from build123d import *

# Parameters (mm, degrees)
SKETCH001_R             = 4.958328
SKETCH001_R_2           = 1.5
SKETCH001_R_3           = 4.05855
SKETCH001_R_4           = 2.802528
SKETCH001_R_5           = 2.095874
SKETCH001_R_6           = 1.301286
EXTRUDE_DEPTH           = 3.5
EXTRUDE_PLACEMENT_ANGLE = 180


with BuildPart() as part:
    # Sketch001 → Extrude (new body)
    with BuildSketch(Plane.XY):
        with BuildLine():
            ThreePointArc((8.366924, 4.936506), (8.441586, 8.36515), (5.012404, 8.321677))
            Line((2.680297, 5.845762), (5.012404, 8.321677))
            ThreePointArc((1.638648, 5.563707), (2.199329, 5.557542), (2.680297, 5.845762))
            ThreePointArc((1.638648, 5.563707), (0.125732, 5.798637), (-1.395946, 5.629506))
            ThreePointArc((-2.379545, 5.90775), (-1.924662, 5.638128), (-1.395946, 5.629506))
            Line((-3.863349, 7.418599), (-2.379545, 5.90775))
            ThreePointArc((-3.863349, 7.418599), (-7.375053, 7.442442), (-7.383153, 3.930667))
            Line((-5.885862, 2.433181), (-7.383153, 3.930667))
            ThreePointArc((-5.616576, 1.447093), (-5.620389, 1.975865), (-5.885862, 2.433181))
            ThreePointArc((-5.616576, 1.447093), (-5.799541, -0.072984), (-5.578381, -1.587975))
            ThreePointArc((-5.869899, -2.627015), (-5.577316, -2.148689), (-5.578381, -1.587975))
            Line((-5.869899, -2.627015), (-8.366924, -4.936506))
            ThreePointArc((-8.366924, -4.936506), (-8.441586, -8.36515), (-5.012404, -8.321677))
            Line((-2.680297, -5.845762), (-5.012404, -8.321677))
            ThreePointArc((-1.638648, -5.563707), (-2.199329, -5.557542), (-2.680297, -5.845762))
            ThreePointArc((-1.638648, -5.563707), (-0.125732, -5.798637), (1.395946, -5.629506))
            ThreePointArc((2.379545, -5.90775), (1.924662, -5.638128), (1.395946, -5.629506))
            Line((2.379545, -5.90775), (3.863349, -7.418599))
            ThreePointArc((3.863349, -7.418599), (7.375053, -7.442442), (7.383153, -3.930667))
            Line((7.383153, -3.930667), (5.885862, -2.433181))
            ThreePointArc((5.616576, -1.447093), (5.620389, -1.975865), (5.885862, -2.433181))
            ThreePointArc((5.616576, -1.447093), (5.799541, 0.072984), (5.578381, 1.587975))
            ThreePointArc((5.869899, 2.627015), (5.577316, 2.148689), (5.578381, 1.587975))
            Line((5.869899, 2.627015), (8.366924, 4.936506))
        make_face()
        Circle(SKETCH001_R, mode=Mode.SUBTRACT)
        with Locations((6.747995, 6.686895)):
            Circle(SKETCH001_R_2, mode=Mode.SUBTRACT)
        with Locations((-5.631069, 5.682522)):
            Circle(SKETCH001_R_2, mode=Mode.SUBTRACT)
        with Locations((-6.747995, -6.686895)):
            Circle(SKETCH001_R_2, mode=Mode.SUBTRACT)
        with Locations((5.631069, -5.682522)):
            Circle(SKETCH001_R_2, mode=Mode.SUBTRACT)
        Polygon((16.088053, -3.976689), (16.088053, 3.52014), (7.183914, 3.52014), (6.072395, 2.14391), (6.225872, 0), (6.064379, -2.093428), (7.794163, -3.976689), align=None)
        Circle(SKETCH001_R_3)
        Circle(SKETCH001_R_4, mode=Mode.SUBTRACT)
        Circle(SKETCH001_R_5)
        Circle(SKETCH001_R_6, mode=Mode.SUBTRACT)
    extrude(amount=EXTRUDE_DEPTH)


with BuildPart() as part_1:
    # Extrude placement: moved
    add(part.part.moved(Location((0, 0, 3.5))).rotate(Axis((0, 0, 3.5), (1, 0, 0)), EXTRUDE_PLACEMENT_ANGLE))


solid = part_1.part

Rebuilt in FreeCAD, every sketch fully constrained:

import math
import FreeCAD as App
import Part
import Sketcher

doc = App.newDocument("Part")
params = doc.addObject("Spreadsheet::Sheet", "Params")
for row, (alias, value) in enumerate([
    ("sketch1_diameter", "3 mm"),
    ("sketch1_radius", "5.799998 mm"),
    ("pad1_length", "3.5 mm"),
], start=1):
    params.set(f"A{row}", alias)
    params.set(f"B{row}", "=" + value)
    params.setAlias(f"B{row}", alias)

body = doc.addObject("PartDesign::Body", "Body")
body.AllowCompound = True

# Sketch on XY plane
sketch1 = body.newObject("Sketcher::SketchObject", "Sketch")
sketch1.AttachmentSupport = (doc.getObject("XY_Plane"), [""])
sketch1.MapMode = "FlatFace"
sketch1.addGeometry(Part.ArcOfCircle(Part.Circle(App.Vector(6.747995, 6.686895, 0), App.Vector(0, 0, 1), 2.38428), math.radians(-47.234364), math.radians(136.713224)), False)
sketch1.addGeometry(Part.LineSegment(App.Vector(5.012404, 8.321677, 0), App.Vector(2.680297, 5.845762, 0)), False)
sketch1.addGeometry(Part.ArcOfCircle(Part.Circle(App.Vector(1.929896, 6.552578, 0), App.Vector(0, 0, 1), 1.030869), math.radians(-106.411034), math.radians(-43.286802)), False)
sketch1.addGeometry(Part.ArcOfCircle(Part.Circle(App.Vector(0, -0.000008, 0), App.Vector(0, 0, 1), 5.800008), math.radians(73.589028), math.radians(103.926676)), False)
sketch1.addGeometry(Part.ArcOfCircle(Part.Circle(App.Vector(-1.644058, 6.63007, 0), App.Vector(0, 0, 1), 1.030868), math.radians(-135.517492), math.radians(-76.073181)), False)
sketch1.addGeometry(Part.LineSegment(App.Vector(-2.379545, 5.90775, 0), App.Vector(-3.863349, 7.418599, 0)), False)
sketch1.addGeometry(Part.ArcOfCircle(Part.Circle(App.Vector(-5.631069, 5.682523, 0), App.Vector(0, 0, 1), 2.477659), math.radians(44.482559), math.radians(224.996268)), False)
sketch1.addGeometry(Part.LineSegment(App.Vector(-7.383153, 3.930667, 0), App.Vector(-5.885862, 2.433181, 0)), False)
sketch1.addGeometry(Part.ArcOfCircle(Part.Circle(App.Vector(-6.614843, 1.704294, 0), App.Vector(0, 0, 1), 1.030868), math.radians(-14.447906), math.radians(44.996312)), False)
sketch1.addGeometry(Part.ArcOfCircle(Part.Circle(App.Vector(-0.000002, 0.000001, 0), App.Vector(0, 0, 1), 5.799998), math.radians(165.552148), math.radians(195.88986)), False)
sketch1.addGeometry(Part.ArcOfCircle(Part.Circle(App.Vector(-6.569859, -1.870216, 0), App.Vector(0, 0, 1), 1.030867), math.radians(-47.234413), math.radians(15.889918)), False)
sketch1.addGeometry(Part.LineSegment(App.Vector(-5.869899, -2.627015, 0), App.Vector(-8.366924, -4.936506, 0)), False)
sketch1.addGeometry(Part.ArcOfCircle(Part.Circle(App.Vector(-6.747995, -6.686895, 0), App.Vector(0, 0, 1), 2.38428), math.radians(132.765636), math.radians(316.713224)), False)
sketch1.addGeometry(Part.LineSegment(App.Vector(-5.012404, -8.321677, 0), App.Vector(-2.680297, -5.845762, 0)), False)
sketch1.addGeometry(Part.ArcOfCircle(Part.Circle(App.Vector(-1.929896, -6.552578, 0), App.Vector(0, 0, 1), 1.030869), math.radians(73.588966), math.radians(136.713198)), False)
sketch1.addGeometry(Part.ArcOfCircle(Part.Circle(App.Vector(0, 0.000008, 0), App.Vector(0, 0, 1), 5.800008), math.radians(-106.410972), math.radians(-76.073324)), False)
sketch1.addGeometry(Part.ArcOfCircle(Part.Circle(App.Vector(1.644058, -6.63007, 0), App.Vector(0, 0, 1), 1.030868), math.radians(44.482508), math.radians(103.926819)), False)
sketch1.addGeometry(Part.LineSegment(App.Vector(2.379545, -5.90775, 0), App.Vector(3.863349, -7.418599, 0)), False)
sketch1.addGeometry(Part.ArcOfCircle(Part.Circle(App.Vector(5.631069, -5.682523, 0), App.Vector(0, 0, 1), 2.477659), math.radians(-135.517441), math.radians(44.996268)), False)
sketch1.addGeometry(Part.LineSegment(App.Vector(7.383153, -3.930667, 0), App.Vector(5.885862, -2.433181, 0)), False)
sketch1.addGeometry(Part.ArcOfCircle(Part.Circle(App.Vector(6.614843, -1.704294, 0), App.Vector(0, 0, 1), 1.030868), math.radians(165.552094), math.radians(224.996312)), False)
sketch1.addGeometry(Part.ArcOfCircle(Part.Circle(App.Vector(0.000002, -0.000001, 0), App.Vector(0, 0, 1), 5.799998), math.radians(-14.447852), math.radians(15.88986)), False)
sketch1.addGeometry(Part.ArcOfCircle(Part.Circle(App.Vector(6.569859, 1.870216, 0), App.Vector(0, 0, 1), 1.030867), math.radians(132.765587), math.radians(195.889918)), False)
sketch1.addGeometry(Part.LineSegment(App.Vector(5.869899, 2.627015, 0), App.Vector(8.366924, 4.936506, 0)), False)
sketch1.addGeometry(Part.Circle(App.Vector(-6.747995, -6.686895, 0), App.Vector(0, 0, 1), 1.5), False)
sketch1.addGeometry(Part.Circle(App.Vector(5.631069, -5.682522, 0), App.Vector(0, 0, 1), 1.5), False)
sketch1.addGeometry(Part.Circle(App.Vector(-5.631069, 5.682522, 0), App.Vector(0, 0, 1), 1.5), False)
sketch1.addGeometry(Part.Circle(App.Vector(0, 0, 0), App.Vector(0, 0, 1), 4.958328), False)
sketch1.addGeometry(Part.Circle(App.Vector(6.747995, 6.686895, 0), App.Vector(0, 0, 1), 1.5), False)
sketch1.addGeometry(Part.LineSegment(App.Vector(16.088053, -3.976689, 0), App.Vector(16.088053, 3.52014, 0)), False)
sketch1.addGeometry(Part.LineSegment(App.Vector(16.088053, 3.52014, 0), App.Vector(7.183914, 3.52014, 0)), False)
sketch1.addGeometry(Part.LineSegment(App.Vector(7.183914, 3.52014, 0), App.Vector(6.072395, 2.14391, 0)), False)
sketch1.addGeometry(Part.LineSegment(App.Vector(6.072395, 2.14391, 0), App.Vector(6.225872, 0, 0)), False)
sketch1.addGeometry(Part.LineSegment(App.Vector(6.225872, 0, 0), App.Vector(6.064379, -2.093428, 0)), False)
sketch1.addGeometry(Part.LineSegment(App.Vector(6.064379, -2.093428, 0), App.Vector(7.794163, -3.976689, 0)), False)
sketch1.addGeometry(Part.LineSegment(App.Vector(7.794163, -3.976689, 0), App.Vector(16.088053, -3.976689, 0)), False)
sketch1.addGeometry(Part.Circle(App.Vector(0, 0, 0), App.Vector(0, 0, 1), 4.05855), False)
sketch1.addGeometry(Part.Circle(App.Vector(0, 0, 0), App.Vector(0, 0, 1), 2.802528), False)
sketch1.addGeometry(Part.Circle(App.Vector(0, 0, 0), App.Vector(0, 0, 1), 2.095874), False)
sketch1.addGeometry(Part.Circle(App.Vector(0, 0, 0), App.Vector(0, 0, 1), 1.301286), False)
sketch1.addConstraint(Sketcher.Constraint("Tangent", 0, 2, 1, 1))
sketch1.addConstraint(Sketcher.Constraint("Tangent", 1, 2, 2, 2))
sketch1.addConstraint(Sketcher.Constraint("Tangent", 2, 1, 3, 1))
sketch1.addConstraint(Sketcher.Constraint("Coincident", 3, 2, 4, 2))
sketch1.addConstraint(Sketcher.Constraint("Tangent", 4, 1, 5, 1))
sketch1.addConstraint(Sketcher.Constraint("Tangent", 5, 2, 6, 1))
sketch1.addConstraint(Sketcher.Constraint("Tangent", 6, 2, 7, 1))
sketch1.addConstraint(Sketcher.Constraint("Tangent", 7, 2, 8, 2))
sketch1.addConstraint(Sketcher.Constraint("Tangent", 8, 1, 9, 1))
sketch1.addConstraint(Sketcher.Constraint("Tangent", 9, 2, 10, 2))
sketch1.addConstraint(Sketcher.Constraint("Tangent", 10, 1, 11, 1))
sketch1.addConstraint(Sketcher.Constraint("Tangent", 11, 2, 12, 1))
sketch1.addConstraint(Sketcher.Constraint("Tangent", 12, 2, 13, 1))
sketch1.addConstraint(Sketcher.Constraint("Tangent", 13, 2, 14, 2))
sketch1.addConstraint(Sketcher.Constraint("Tangent", 14, 1, 15, 1))
sketch1.addConstraint(Sketcher.Constraint("Coincident", 15, 2, 16, 2))
sketch1.addConstraint(Sketcher.Constraint("Tangent", 16, 1, 17, 1))
sketch1.addConstraint(Sketcher.Constraint("Tangent", 17, 2, 18, 1))
sketch1.addConstraint(Sketcher.Constraint("Tangent", 18, 2, 19, 1))
sketch1.addConstraint(Sketcher.Constraint("Tangent", 19, 2, 20, 2))
sketch1.addConstraint(Sketcher.Constraint("Tangent", 20, 1, 21, 1))
sketch1.addConstraint(Sketcher.Constraint("Tangent", 21, 2, 22, 2))
sketch1.addConstraint(Sketcher.Constraint("Tangent", 22, 1, 23, 1))
sketch1.addConstraint(Sketcher.Constraint("Tangent", 23, 2, 0, 1))
sketch1.addConstraint(Sketcher.Constraint("Coincident", 29, 2, 30, 1))
sketch1.addConstraint(Sketcher.Constraint("Coincident", 30, 2, 31, 1))
sketch1.addConstraint(Sketcher.Constraint("Coincident", 31, 2, 32, 1))
sketch1.addConstraint(Sketcher.Constraint("Coincident", 32, 2, 33, 1))
sketch1.addConstraint(Sketcher.Constraint("Coincident", 33, 2, 34, 1))
sketch1.addConstraint(Sketcher.Constraint("Coincident", 34, 2, 35, 1))
sketch1.addConstraint(Sketcher.Constraint("Coincident", 35, 2, 29, 1))
sketch1.addConstraint(Sketcher.Constraint("Vertical", 29))
sketch1.addConstraint(Sketcher.Constraint("Horizontal", 30))
sketch1.addConstraint(Sketcher.Constraint("Horizontal", 35))
sketch1.addConstraint(Sketcher.Constraint("Coincident", 3, 3, -1, 1))
sketch1.addConstraint(Sketcher.Constraint("Coincident", 9, 3, -1, 1))
sketch1.addConstraint(Sketcher.Constraint("Coincident", 15, 3, -1, 1))
sketch1.addConstraint(Sketcher.Constraint("Coincident", 21, 3, -1, 1))
sketch1.addConstraint(Sketcher.Constraint("Coincident", 27, 3, -1, 1))
sketch1.addConstraint(Sketcher.Constraint("Coincident", 36, 3, -1, 1))
sketch1.addConstraint(Sketcher.Constraint("Coincident", 37, 3, -1, 1))
sketch1.addConstraint(Sketcher.Constraint("Coincident", 38, 3, -1, 1))
sketch1.addConstraint(Sketcher.Constraint("Coincident", 39, 3, -1, 1))
sketch1.addConstraint(Sketcher.Constraint("Coincident", 24, 3, 12, 3))
sketch1.addConstraint(Sketcher.Constraint("Coincident", 25, 3, 18, 3))
sketch1.addConstraint(Sketcher.Constraint("Coincident", 26, 3, 6, 3))
sketch1.addConstraint(Sketcher.Constraint("Coincident", 28, 3, 0, 3))
sketch1.addConstraint(Sketcher.Constraint("Equal", 2, 4))
sketch1.addConstraint(Sketcher.Constraint("Equal", 4, 8))
sketch1.addConstraint(Sketcher.Constraint("Equal", 8, 10))
sketch1.addConstraint(Sketcher.Constraint("Equal", 0, 12))
sketch1.addConstraint(Sketcher.Constraint("Equal", 10, 14))
sketch1.addConstraint(Sketcher.Constraint("Equal", 3, 15))
sketch1.addConstraint(Sketcher.Constraint("Equal", 14, 16))
sketch1.addConstraint(Sketcher.Constraint("Equal", 6, 18))
sketch1.addConstraint(Sketcher.Constraint("Equal", 16, 20))
sketch1.addConstraint(Sketcher.Constraint("Equal", 9, 21))
sketch1.addConstraint(Sketcher.Constraint("Equal", 20, 22))
sketch1.addConstraint(Sketcher.Constraint("Equal", 24, 25))
sketch1.addConstraint(Sketcher.Constraint("Equal", 25, 26))
sketch1.addConstraint(Sketcher.Constraint("Equal", 26, 28))
sketch1.addConstraint(Sketcher.Constraint("Symmetric", 0, 3, 12, 3, -1, 1))
sketch1.addConstraint(Sketcher.Constraint("Symmetric", 6, 3, 18, 3, -1, 1))
sketch1.addConstraint(Sketcher.Constraint("PointOnObject", 32, 2, -1))
sketch1.addConstraint(Sketcher.Constraint("Parallel", 1, 13))
sketch1.addConstraint(Sketcher.Constraint("Parallel", 5, 17))
sketch1.addConstraint(Sketcher.Constraint("Parallel", 7, 19))
sketch1.addConstraint(Sketcher.Constraint("Parallel", 11, 23))
sketch1.addConstraint(Sketcher.Constraint("Equal", 5, 7))
sketch1.addConstraint(Sketcher.Constraint("Equal", 1, 11))
sketch1.addConstraint(Sketcher.Constraint("Diameter", 24, 3.0))
sketch1.addConstraint(Sketcher.Constraint("Radius", 9, 5.799998))
sketch1.addConstraint(Sketcher.Constraint("Diameter", 36, 8.1171))
sketch1.addConstraint(Sketcher.Constraint("Diameter", 39, 2.602572))
sketch1.addConstraint(Sketcher.Constraint("Radius", 0, 2.38428))
sketch1.addConstraint(Sketcher.Constraint("Radius", 2, 1.030869))
sketch1.addConstraint(Sketcher.Constraint("Radius", 3, 5.800008))
sketch1.addConstraint(Sketcher.Constraint("Radius", 6, 2.477659))
sketch1.addConstraint(Sketcher.Constraint("Diameter", 27, 9.916656))
sketch1.addConstraint(Sketcher.Constraint("Diameter", 37, 5.605056))
sketch1.addConstraint(Sketcher.Constraint("Diameter", 38, 4.191748))
sketch1.addConstraint(Sketcher.Constraint("DistanceX", 30, 2, 30, 1, 8.904139))
sketch1.addConstraint(Sketcher.Constraint("DistanceX", 35, 1, 35, 2, 8.29389))
sketch1.addConstraint(Sketcher.Constraint("DistanceY", 29, 1, 29, 2, 7.496829))
sketch1.addConstraint(Sketcher.Constraint("DistanceY", -1, 1, 5, 2, 7.418599))
sketch1.addConstraint(Sketcher.Constraint("DistanceX", 10, 1, -1, 1, 5.869899))
sketch1.addConstraint(Sketcher.Constraint("DistanceX", 2, 3, 0, 3, 4.8181))
sketch1.addConstraint(Sketcher.Constraint("DistanceY", 8, 3, 0, 3, 4.9826))
sketch1.addConstraint(Sketcher.Constraint("DistanceX", 10, 3, 4, 3, 4.925801))
sketch1.addConstraint(Sketcher.Constraint("DistanceY", 2, 3, 0, 2, 1.769099))
sketch1.addConstraint(Sketcher.Constraint("DistanceY", 2, 1, 3, 2, 0.065799))
sketch1.addConstraint(Sketcher.Constraint("DistanceY", 15, 2, 14, 1, 0.065799))
sketch1.addConstraint(Sketcher.Constraint("DistanceX", 19, 2, 34, 2, 1.908301))
sketch1.addConstraint(Sketcher.Constraint("DistanceY", -1, 1, 29, 2, 3.52014))
sketch1.addConstraint(Sketcher.Constraint("DistanceY", -1, 1, 31, 2, 2.14391))
sketch1.addConstraint(Sketcher.Constraint("DistanceX", -1, 1, 33, 2, 6.064379))
sketch1.addConstraint(Sketcher.Constraint("DistanceX", 31, 2, 30, 2, 1.111519))
sketch1.addConstraint(Sketcher.Constraint("DistanceX", 21, 2, 32, 2, 0.647491))
sketch1.addConstraint(Sketcher.Constraint("DistanceY", 18, 2, 33, 2, 1.837239))
sketch1.setExpression("Constraints[70]", "Params.sketch1_diameter")
sketch1.setExpression("Constraints[71]", "Params.sketch1_radius")
pad1 = body.newObject("PartDesign::Pad", "Pad")
pad1.Profile = sketch1
pad1.setExpression("Length", "Params.pad1_length")
body2 = doc.addObject("PartDesign::Body", "Body001")
body2.AllowCompound = True
doc.recompute()

body.Placement = App.Placement(App.Vector(0, 0, 3.5), App.Rotation(App.Vector(1, 0, 0), 180))
boolean = body2.newObject("PartDesign::Boolean", "Boolean")
boolean.Type = "Fuse"
boolean.addObjects([body])

doc.recompute()
